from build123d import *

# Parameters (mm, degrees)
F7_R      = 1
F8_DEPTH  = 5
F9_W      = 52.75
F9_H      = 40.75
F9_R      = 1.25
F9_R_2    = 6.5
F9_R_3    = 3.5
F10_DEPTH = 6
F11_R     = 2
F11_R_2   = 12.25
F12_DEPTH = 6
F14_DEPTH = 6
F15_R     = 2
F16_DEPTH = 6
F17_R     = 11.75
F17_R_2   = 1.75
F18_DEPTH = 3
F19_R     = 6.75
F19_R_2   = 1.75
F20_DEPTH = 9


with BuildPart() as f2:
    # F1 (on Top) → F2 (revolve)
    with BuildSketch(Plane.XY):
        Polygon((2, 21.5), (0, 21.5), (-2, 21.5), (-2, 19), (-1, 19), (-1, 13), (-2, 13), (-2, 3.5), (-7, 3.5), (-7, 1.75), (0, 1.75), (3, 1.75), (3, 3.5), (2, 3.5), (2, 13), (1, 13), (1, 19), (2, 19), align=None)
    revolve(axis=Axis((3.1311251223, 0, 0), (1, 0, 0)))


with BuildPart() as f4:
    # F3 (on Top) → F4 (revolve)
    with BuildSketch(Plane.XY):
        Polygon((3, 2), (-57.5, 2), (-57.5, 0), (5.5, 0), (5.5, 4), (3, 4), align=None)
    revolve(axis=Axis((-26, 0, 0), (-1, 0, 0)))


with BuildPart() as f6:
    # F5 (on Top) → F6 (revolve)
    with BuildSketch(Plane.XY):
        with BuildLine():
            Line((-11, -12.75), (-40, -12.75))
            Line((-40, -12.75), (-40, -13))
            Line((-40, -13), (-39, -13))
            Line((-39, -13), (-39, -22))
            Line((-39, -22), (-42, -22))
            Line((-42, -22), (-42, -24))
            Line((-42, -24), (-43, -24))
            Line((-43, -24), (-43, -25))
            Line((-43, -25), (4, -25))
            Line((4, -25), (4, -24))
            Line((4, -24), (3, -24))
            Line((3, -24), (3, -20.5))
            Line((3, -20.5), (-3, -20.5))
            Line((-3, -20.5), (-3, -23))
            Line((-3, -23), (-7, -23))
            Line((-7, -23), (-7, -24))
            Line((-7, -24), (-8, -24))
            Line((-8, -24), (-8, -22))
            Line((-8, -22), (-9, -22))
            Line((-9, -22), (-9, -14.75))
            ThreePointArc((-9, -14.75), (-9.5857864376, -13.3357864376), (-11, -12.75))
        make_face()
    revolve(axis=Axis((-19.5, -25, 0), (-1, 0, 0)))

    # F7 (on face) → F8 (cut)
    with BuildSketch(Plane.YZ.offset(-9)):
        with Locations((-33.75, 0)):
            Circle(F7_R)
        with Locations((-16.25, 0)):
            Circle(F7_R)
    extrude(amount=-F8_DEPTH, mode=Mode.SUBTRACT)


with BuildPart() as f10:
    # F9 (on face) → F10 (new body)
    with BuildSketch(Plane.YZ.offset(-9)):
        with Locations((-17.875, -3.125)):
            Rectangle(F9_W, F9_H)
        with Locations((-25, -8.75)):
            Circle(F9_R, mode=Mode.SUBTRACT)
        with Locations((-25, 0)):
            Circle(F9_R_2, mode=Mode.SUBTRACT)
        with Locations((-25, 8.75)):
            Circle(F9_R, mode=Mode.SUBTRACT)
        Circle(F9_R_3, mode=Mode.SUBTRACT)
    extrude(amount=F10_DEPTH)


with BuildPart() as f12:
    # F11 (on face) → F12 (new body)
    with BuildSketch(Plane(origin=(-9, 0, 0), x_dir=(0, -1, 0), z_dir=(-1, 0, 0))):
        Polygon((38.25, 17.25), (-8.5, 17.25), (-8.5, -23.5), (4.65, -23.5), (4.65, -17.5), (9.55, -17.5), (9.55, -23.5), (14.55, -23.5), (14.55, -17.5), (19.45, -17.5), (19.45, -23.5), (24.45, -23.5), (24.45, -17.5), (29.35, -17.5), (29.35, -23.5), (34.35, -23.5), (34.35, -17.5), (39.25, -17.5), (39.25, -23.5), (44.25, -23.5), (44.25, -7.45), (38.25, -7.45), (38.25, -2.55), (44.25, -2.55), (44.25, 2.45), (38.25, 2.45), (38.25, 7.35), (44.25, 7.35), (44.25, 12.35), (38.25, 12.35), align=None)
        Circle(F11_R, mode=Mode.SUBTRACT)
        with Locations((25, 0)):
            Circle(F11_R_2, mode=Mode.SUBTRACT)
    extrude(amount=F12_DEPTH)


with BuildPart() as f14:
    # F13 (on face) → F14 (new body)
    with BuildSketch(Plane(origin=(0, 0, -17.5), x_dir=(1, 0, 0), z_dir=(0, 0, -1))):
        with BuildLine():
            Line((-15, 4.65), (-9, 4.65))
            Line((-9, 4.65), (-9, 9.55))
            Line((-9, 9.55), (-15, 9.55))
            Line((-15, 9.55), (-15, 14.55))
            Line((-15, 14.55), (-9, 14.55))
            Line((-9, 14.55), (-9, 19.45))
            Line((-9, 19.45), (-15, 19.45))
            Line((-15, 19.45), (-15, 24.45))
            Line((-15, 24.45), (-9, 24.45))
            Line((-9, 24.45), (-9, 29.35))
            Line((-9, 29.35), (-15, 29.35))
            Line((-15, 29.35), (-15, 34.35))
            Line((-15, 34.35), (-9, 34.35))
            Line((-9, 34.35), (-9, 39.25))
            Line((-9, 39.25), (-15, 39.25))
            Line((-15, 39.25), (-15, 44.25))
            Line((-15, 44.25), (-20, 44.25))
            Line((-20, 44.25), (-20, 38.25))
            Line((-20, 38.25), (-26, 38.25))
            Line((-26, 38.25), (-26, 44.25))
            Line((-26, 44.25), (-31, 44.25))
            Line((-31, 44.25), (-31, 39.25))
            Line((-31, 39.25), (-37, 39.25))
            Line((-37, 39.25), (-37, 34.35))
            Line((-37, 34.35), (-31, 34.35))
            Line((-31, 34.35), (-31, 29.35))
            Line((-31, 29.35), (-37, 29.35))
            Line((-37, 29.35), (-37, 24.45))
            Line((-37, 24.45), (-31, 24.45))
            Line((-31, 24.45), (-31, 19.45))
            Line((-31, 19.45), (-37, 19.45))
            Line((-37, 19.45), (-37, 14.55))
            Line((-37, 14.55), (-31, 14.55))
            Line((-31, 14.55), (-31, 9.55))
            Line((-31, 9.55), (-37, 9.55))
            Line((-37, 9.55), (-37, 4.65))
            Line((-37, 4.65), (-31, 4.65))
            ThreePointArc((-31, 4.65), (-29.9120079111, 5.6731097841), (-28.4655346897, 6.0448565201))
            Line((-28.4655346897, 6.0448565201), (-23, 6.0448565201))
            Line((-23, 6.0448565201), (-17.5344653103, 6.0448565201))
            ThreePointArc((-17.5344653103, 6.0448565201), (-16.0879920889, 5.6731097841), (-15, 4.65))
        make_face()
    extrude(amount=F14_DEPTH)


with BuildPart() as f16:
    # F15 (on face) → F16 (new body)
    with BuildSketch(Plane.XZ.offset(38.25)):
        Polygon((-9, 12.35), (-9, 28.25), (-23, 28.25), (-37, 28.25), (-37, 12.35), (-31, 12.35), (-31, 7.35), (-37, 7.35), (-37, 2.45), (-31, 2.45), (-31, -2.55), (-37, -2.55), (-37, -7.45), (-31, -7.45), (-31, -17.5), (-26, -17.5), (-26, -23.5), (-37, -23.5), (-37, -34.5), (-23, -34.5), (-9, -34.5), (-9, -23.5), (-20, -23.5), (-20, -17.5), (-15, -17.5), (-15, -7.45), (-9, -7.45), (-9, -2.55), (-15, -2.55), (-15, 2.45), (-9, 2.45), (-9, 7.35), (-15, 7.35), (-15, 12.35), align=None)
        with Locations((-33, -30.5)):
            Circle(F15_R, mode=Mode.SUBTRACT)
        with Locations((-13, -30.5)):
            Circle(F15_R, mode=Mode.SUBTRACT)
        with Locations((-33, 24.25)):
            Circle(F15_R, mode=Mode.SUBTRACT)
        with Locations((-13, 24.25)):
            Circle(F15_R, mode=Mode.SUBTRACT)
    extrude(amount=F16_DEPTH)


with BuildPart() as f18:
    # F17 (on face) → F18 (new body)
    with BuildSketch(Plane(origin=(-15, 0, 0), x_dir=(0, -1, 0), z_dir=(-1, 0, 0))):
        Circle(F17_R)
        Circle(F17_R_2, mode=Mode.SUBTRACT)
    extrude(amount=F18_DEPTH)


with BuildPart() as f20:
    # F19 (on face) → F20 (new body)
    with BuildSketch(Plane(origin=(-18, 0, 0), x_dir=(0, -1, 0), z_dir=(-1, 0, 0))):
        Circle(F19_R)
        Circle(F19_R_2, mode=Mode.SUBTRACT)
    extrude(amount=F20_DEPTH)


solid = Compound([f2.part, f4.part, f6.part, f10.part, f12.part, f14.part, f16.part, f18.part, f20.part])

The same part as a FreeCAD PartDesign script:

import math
import FreeCAD as App
import Part
import Sketcher

V = App.Vector


def add_polygon(sketch, points):
    """Adds a closed chain of lines whose ends are joined by coincident constraints."""
    first, n = sketch.GeometryCount, len(points)
    for a, b in zip(points, points[1:] + points[:1]):
        sketch.addGeometry(Part.LineSegment(App.Vector(*a, 0), App.Vector(*b, 0)), False)
    for i in range(n):
        sketch.addConstraint(Sketcher.Constraint("Coincident", first + i, 2, first + (i + 1) % n, 1))

doc = App.newDocument("Part")
body = doc.addObject("PartDesign::Body", "Body")

# Sketch on XY plane
sketch1 = body.newObject("Sketcher::SketchObject", "Sketch")
sketch1.AttachmentSupport = (doc.getObject("XY_Plane"), [""])
sketch1.MapMode = "FlatFace"
add_polygon(sketch1, [(2, 21.5), (-2, 21.5), (-2, 19), (-1, 19), (-1, 13), (-2, 13), (-2, 3.5), (-7, 3.5), (-7, 1.75), (3, 1.75), (3, 3.5), (2, 3.5), (2, 13), (1, 13), (1, 19), (2, 19)])  # lines 0-15
sketch1.addConstraint(Sketcher.Constraint("Horizontal", 0))
sketch1.addConstraint(Sketcher.Constraint("Vertical", 1))
sketch1.addConstraint(Sketcher.Constraint("Horizontal", 2))
sketch1.addConstraint(Sketcher.Constraint("Vertical", 3))
sketch1.addConstraint(Sketcher.Constraint("Horizontal", 4))
sketch1.addConstraint(Sketcher.Constraint("Vertical", 5))
sketch1.addConstraint(Sketcher.Constraint("Horizontal", 6))
sketch1.addConstraint(Sketcher.Constraint("Vertical", 7))
sketch1.addConstraint(Sketcher.Constraint("Horizontal", 8))
sketch1.addConstraint(Sketcher.Constraint("Vertical", 9))
sketch1.addConstraint(Sketcher.Constraint("Horizontal", 10))
sketch1.addConstraint(Sketcher.Constraint("Vertical", 11))
sketch1.addConstraint(Sketcher.Constraint("Horizontal", 12))
sketch1.addConstraint(Sketcher.Constraint("Vertical", 13))
sketch1.addConstraint(Sketcher.Constraint("Horizontal", 14))
sketch1.addConstraint(Sketcher.Constraint("Vertical", 15))
sketch1.addConstraint(Sketcher.Constraint("Symmetric", 5, 2, 10, 2, -2))
sketch1.addConstraint(Sketcher.Constraint("Symmetric", 3, 2, 12, 2, -2))
sketch1.addConstraint(Sketcher.Constraint("Symmetric", 1, 2, 14, 2, -2))
sketch1.addConstraint(Sketcher.Constraint("Vertical", 1, 2, 4, 2))
sketch1.addConstraint(Sketcher.Constraint("Equal", 4, 10))
sketch1.addConstraint(Sketcher.Constraint("DistanceX", 0, 2, 0, 1, 4.0))
sketch1.addConstraint(Sketcher.Constraint("DistanceX", 2, 1, 2, 2, 1.0))
sketch1.addConstraint(Sketcher.Constraint("DistanceX", 6, 2, 6, 1, 5.0))
sketch1.addConstraint(Sketcher.Constraint("DistanceY", 3, 2, 3, 1, 6.0))
sketch1.addConstraint(Sketcher.Constraint("DistanceY", 1, 2, 1, 1, 2.5))
sketch1.addConstraint(Sketcher.Constraint("DistanceY", 5, 2, 5, 1, 9.5))
sketch1.addConstraint(Sketcher.Constraint("DistanceY", -1, 1, 1, 2, 19.0))
sketch1.addConstraint(Sketcher.Constraint("DistanceY", 7, 2, 7, 1, 1.75))
revolution = body.newObject("PartDesign::Revolution", "Revolution")
revolution.Profile = sketch1
revolution.ReferenceAxis = (sketch1, ["H_Axis"])
revolution.Angle = 360
body2 = doc.addObject("PartDesign::Body", "Body001")

# Sketch on XY plane
sketch2 = body2.newObject("Sketcher::SketchObject", "Sketch001")
sketch2.AttachmentSupport = (doc.getObject("XY_Plane001"), [""])
sketch2.MapMode = "FlatFace"
add_polygon(sketch2, [(3, 2), (-57.5, 2), (-57.5, 0), (5.5, 0), (5.5, 4), (3, 4)])  # lines 0-5
sketch2.addConstraint(Sketcher.Constraint("Horizontal", 0))
sketch2.addConstraint(Sketcher.Constraint("Vertical", 1))
sketch2.addConstraint(Sketcher.Constraint("Horizontal", 2))
sketch2.addConstraint(Sketcher.Constraint("Vertical", 3))
sketch2.addConstraint(Sketcher.Constraint("Horizontal", 4))
sketch2.addConstraint(Sketcher.Constraint("Vertical", 5))
sketch2.addConstraint(Sketcher.Constraint("PointOnObject", 1, 2, -1))
sketch2.addConstraint(Sketcher.Constraint("Equal", 1, 5))
sketch2.addConstraint(Sketcher.Constraint("DistanceX", 2, 1, 2, 2, 63.0))
sketch2.addConstraint(Sketcher.Constraint("DistanceY", 1, 2, 1, 1, 2.0))
sketch2.addConstraint(Sketcher.Constraint("DistanceX", 0, 2, 0, 1, 60.5))
sketch2.addConstraint(Sketcher.Constraint("DistanceX", -1, 1, 4, 2, 3.0))
revolution2 = body2.newObject("PartDesign::Revolution", "Revolution001")
revolution2.Profile = sketch2
revolution2.ReferenceAxis = (sketch2, ["H_Axis"])
revolution2.Angle = 360
body3 = doc.addObject("PartDesign::Body", "Body002")

# Sketch on XY plane
sketch3 = body3.newObject("Sketcher::SketchObject", "Sketch002")
sketch3.AttachmentSupport = (doc.getObject("XY_Plane002"), [""])
sketch3.MapMode = "FlatFace"
sketch3.addGeometry(Part.LineSegment(V(-11, -12.75, 0), V(-40, -12.75, 0)), False)
sketch3.addGeometry(Part.LineSegment(V(-40, -12.75, 0), V(-40, -13, 0)), False)
sketch3.addGeometry(Part.LineSegment(V(-40, -13, 0), V(-39, -13, 0)), False)
sketch3.addGeometry(Part.LineSegment(V(-39, -13, 0), V(-39, -22, 0)), False)
sketch3.addGeometry(Part.LineSegment(V(-39, -22, 0), V(-42, -22, 0)), False)
sketch3.addGeometry(Part.LineSegment(V(-42, -22, 0), V(-42, -24, 0)), False)
sketch3.addGeometry(Part.LineSegment(V(-42, -24, 0), V(-43, -24, 0)), False)
sketch3.addGeometry(Part.LineSegment(V(-43, -24, 0), V(-43, -25, 0)), False)
sketch3.addGeometry(Part.LineSegment(V(-43, -25, 0), V(4, -25, 0)), False)
sketch3.addGeometry(Part.LineSegment(V(4, -25, 0), V(4, -24, 0)), False)
sketch3.addGeometry(Part.LineSegment(V(4, -24, 0), V(3, -24, 0)), False)
sketch3.addGeometry(Part.LineSegment(V(3, -24, 0), V(3, -20.5, 0)), False)
sketch3.addGeometry(Part.LineSegment(V(3, -20.5, 0), V(-3, -20.5, 0)), False)
sketch3.addGeometry(Part.LineSegment(V(-3, -20.5, 0), V(-3, -23, 0)), False)
sketch3.addGeometry(Part.LineSegment(V(-3, -23, 0), V(-7, -23, 0)), False)
sketch3.addGeometry(Part.LineSegment(V(-7, -23, 0), V(-7, -24, 0)), False)
sketch3.addGeometry(Part.LineSegment(V(-7, -24, 0), V(-8, -24, 0)), False)
sketch3.addGeometry(Part.LineSegment(V(-8, -24, 0), V(-8, -22, 0)), False)
sketch3.addGeometry(Part.LineSegment(V(-8, -22, 0), V(-9, -22, 0)), False)
sketch3.addGeometry(Part.LineSegment(V(-9, -22, 0), V(-9, -14.75, 0)), False)
sketch3.addGeometry(Part.ArcOfCircle(Part.Circle(V(-11, -14.75, 0), V(0, 0, 1), 2), math.radians(0), math.radians(90)), False)
sketch3.addGeometry(Part.LineSegment(V(4, -25, 0), V(-43, -25, 0)), True)  # axis
sketch3.addConstraint(Sketcher.Constraint("Coincident", 0, 2, 1, 1))
sketch3.addConstraint(Sketcher.Constraint("Coincident", 1, 2, 2, 1))
sketch3.addConstraint(Sketcher.Constraint("Coincident", 2, 2, 3, 1))
sketch3.addConstraint(Sketcher.Constraint("Coincident", 3, 2, 4, 1))
sketch3.addConstraint(Sketcher.Constraint("Coincident", 4, 2, 5, 1))
sketch3.addConstraint(Sketcher.Constraint("Coincident", 5, 2, 6, 1))
sketch3.addConstraint(Sketcher.Constraint("Coincident", 6, 2, 7, 1))
sketch3.addConstraint(Sketcher.Constraint("Coincident", 7, 2, 8, 1))
sketch3.addConstraint(Sketcher.Constraint("Coincident", 8, 2, 9, 1))
sketch3.addConstraint(Sketcher.Constraint("Coincident", 9, 2, 10, 1))
sketch3.addConstraint(Sketcher.Constraint("Coincident", 10, 2, 11, 1))
sketch3.addConstraint(Sketcher.Constraint("Coincident", 11, 2, 12, 1))
sketch3.addConstraint(Sketcher.Constraint("Coincident", 12, 2, 13, 1))
sketch3.addConstraint(Sketcher.Constraint("Coincident", 13, 2, 14, 1))
sketch3.addConstraint(Sketcher.Constraint("Coincident", 14, 2, 15, 1))
sketch3.addConstraint(Sketcher.Constraint("Coincident", 15, 2, 16, 1))
sketch3.addConstraint(Sketcher.Constraint("Coincident", 16, 2, 17, 1))
sketch3.addConstraint(Sketcher.Constraint("Coincident", 17, 2, 18, 1))
sketch3.addConstraint(Sketcher.Constraint("Coincident", 18, 2, 19, 1))
sketch3.addConstraint(Sketcher.Constraint("Tangent", 19, 2, 20, 1))
sketch3.addConstraint(Sketcher.Constraint("Tangent", 20, 2, 0, 1))
sketch3.addConstraint(Sketcher.Constraint("Horizontal", 0))
sketch3.addConstraint(Sketcher.Constraint("Vertical", 1))
sketch3.addConstraint(Sketcher.Constraint("Horizontal", 2))
sketch3.addConstraint(Sketcher.Constraint("Vertical", 3))
sketch3.addConstraint(Sketcher.Constraint("Horizontal", 4))
sketch3.addConstraint(Sketcher.Constraint("Vertical", 5))
sketch3.addConstraint(Sketcher.Constraint("Horizontal", 6))
sketch3.addConstraint(Sketcher.Constraint("Vertical", 7))
sketch3.addConstraint(Sketcher.Constraint("Horizontal", 8))
sketch3.addConstraint(Sketcher.Constraint("Vertical", 9))
sketch3.addConstraint(Sketcher.Constraint("Horizontal", 10))
sketch3.addConstraint(Sketcher.Constraint("Vertical", 11))
sketch3.addConstraint(Sketcher.Constraint("Horizontal", 12))
sketch3.addConstraint(Sketcher.Constraint("Vertical", 13))
sketch3.addConstraint(Sketcher.Constraint("Horizontal", 14))
sketch3.addConstraint(Sketcher.Constraint("Vertical", 15))
sketch3.addConstraint(Sketcher.Constraint("Horizontal", 16))
sketch3.addConstraint(Sketcher.Constraint("Vertical", 17))
sketch3.addConstraint(Sketcher.Constraint("Horizontal", 18))
sketch3.addConstraint(Sketcher.Constraint("Vertical", 19))
sketch3.addConstraint(Sketcher.Constraint("Horizontal", 21))
sketch3.addConstraint(Sketcher.Constraint("Coincident", 21, 1, 8, 2))
sketch3.addConstraint(Sketcher.Constraint("Horizontal", 6, 2, 9, 2))
sketch3.addConstraint(Sketcher.Constraint("Horizontal", 10, 2, 15, 2))
sketch3.addConstraint(Sketcher.Constraint("Horizontal", 4, 2, 17, 2))
sketch3.addConstraint(Sketcher.Constraint("Vertical", 6, 2, 21, 2))
sketch3.addConstraint(Sketcher.Constraint("Equal", 2, 6))
sketch3.addConstraint(Sketcher.Constraint("Equal", 6, 10))
sketch3.addConstraint(Sketcher.Constraint("Equal", 10, 16))
sketch3.addConstraint(Sketcher.Constraint("Equal", 16, 18))
sketch3.addConstraint(Sketcher.Constraint("Equal", 18, 7))
sketch3.addConstraint(Sketcher.Constraint("Equal", 9, 15))
sketch3.addConstraint(Sketcher.Constraint("Radius", 20, 2.0))
sketch3.addConstraint(Sketcher.Constraint("DistanceX", 0, 2, 0, 1, 29.0))
sketch3.addConstraint(Sketcher.Constraint("DistanceX", 2, 1, 2, 2, 1.0))
sketch3.addConstraint(Sketcher.Constraint("DistanceX", 4, 2, 4, 1, 3.0))
sketch3.addConstraint(Sketcher.Constraint("DistanceX", 8, 1, 8, 2, 47.0))
sketch3.addConstraint(Sketcher.Constraint("DistanceX", 12, 2, 12, 1, 6.0))
sketch3.addConstraint(Sketcher.Constraint("DistanceY", 3, 2, 3, 1, 9.0))
sketch3.addConstraint(Sketcher.Constraint("DistanceY", 5, 2, 5, 1, 2.0))
sketch3.addConstraint(Sketcher.Constraint("DistanceY", 11, 1, 11, 2, 3.5))
sketch3.addConstraint(Sketcher.Constraint("DistanceX", 20, 3, -1, 1, 11.0))
sketch3.addConstraint(Sketcher.Constraint("DistanceY", 1, 2, -1, 1, 13.0))
sketch3.addConstraint(Sketcher.Constraint("DistanceY", 1, 2, 1, 1, 0.25))
revolution3 = body3.newObject("PartDesign::Revolution", "Revolution002")
revolution3.Profile = sketch3
revolution3.ReferenceAxis = (sketch3, ["Axis0"])
revolution3.Angle = 360

# Sketch on YZ plane
sketch4 = body3.newObject("Sketcher::SketchObject", "Sketch003")
sketch4.AttachmentSupport = (doc.getObject("YZ_Plane002"), [""])
sketch4.MapMode = "FlatFace"
sketch4.AttachmentOffset = App.Placement(V(0, 0, -9), App.Rotation())
sketch4.addGeometry(Part.Circle(V(-33.75, 0, 0), V(0, 0, 1), 1), False)
sketch4.addGeometry(Part.Circle(V(-16.25, 0, 0), V(0, 0, 1), 1), False)
sketch4.addConstraint(Sketcher.Constraint("Equal", 0, 1))
sketch4.addConstraint(Sketcher.Constraint("PointOnObject", 0, 3, -1))
sketch4.addConstraint(Sketcher.Constraint("PointOnObject", 1, 3, -1))
sketch4.addConstraint(Sketcher.Constraint("Diameter", 0, 2.0))
sketch4.addConstraint(Sketcher.Constraint("DistanceX", 0, 3, 1, 3, 17.5))
sketch4.addConstraint(Sketcher.Constraint("DistanceX", 0, 3, -1, 1, 33.75))
pocket1 = body3.newObject("PartDesign::Pocket", "Pocket")
pocket1.Profile = sketch4
pocket1.Length = 5
body4 = doc.addObject("PartDesign::Body", "Body003")

# Sketch on YZ plane
sketch5 = body4.newObject("Sketcher::SketchObject", "Sketch004")
sketch5.AttachmentSupport = (doc.getObject("YZ_Plane003"), [""])
sketch5.MapMode = "FlatFace"
sketch5.AttachmentOffset = App.Placement(V(0, 0, -9), App.Rotation())
add_polygon(sketch5, [(-44.25, 17.25), (-44.25, -23.5), (8.5, -23.5), (8.5, 17.25)])  # lines 0-3
sketch5.addGeometry(Part.Circle(V(-25, -8.75, 0), V(0, 0, 1), 1.25), False)  # 4
sketch5.addGeometry(Part.Circle(V(-25, 0, 0), V(0, 0, 1), 6.5), False)  # 5
sketch5.addGeometry(Part.Circle(V(-25, 8.75, 0), V(0, 0, 1), 1.25), False)  # 6
sketch5.addGeometry(Part.Circle(V(0, 0, 0), V(0, 0, 1), 3.5), False)  # 7
sketch5.addConstraint(Sketcher.Constraint("Vertical", 0))
sketch5.addConstraint(Sketcher.Constraint("Horizontal", 1))
sketch5.addConstraint(Sketcher.Constraint("Vertical", 2))
sketch5.addConstraint(Sketcher.Constraint("Horizontal", 3))
sketch5.addConstraint(Sketcher.Constraint("Coincident", 7, 3, -1, 1))
sketch5.addConstraint(Sketcher.Constraint("Equal", 4, 6))
sketch5.addConstraint(Sketcher.Constraint("Symmetric", 4, 3, 6, 3, -1))
sketch5.addConstraint(Sketcher.Constraint("PointOnObject", 5, 3, -1))
sketch5.addConstraint(Sketcher.Constraint("Vertical", 4, 3, 5, 3))
sketch5.addConstraint(Sketcher.Constraint("Diameter", 5, 13.0))
sketch5.addConstraint(Sketcher.Constraint("Diameter", 7, 7.0))
sketch5.addConstraint(Sketcher.Constraint("Diameter", 4, 2.5))
sketch5.addConstraint(Sketcher.Constraint("DistanceX", 4, 3, -1, 1, 25.0))
sketch5.addConstraint(Sketcher.Constraint("DistanceY", 4, 3, 2, 2, 26.0))
sketch5.addConstraint(Sketcher.Constraint("DistanceX", 1, 1, 1, 2, 52.75))
sketch5.addConstraint(Sketcher.Constraint("DistanceY", 0, 2, 0, 1, 40.75))
sketch5.addConstraint(Sketcher.Constraint("DistanceY", 0, 2, -1, 1, 23.5))
sketch5.addConstraint(Sketcher.Constraint("DistanceX", -1, 1, 1, 2, 8.5))
pad1 = body4.newObject("PartDesign::Pad", "Pad")
pad1.Profile = sketch5
pad1.Length = 6
body5 = doc.addObject("PartDesign::Body", "Body004")

# Sketch on YZ plane
sketch6 = body5.newObject("Sketcher::SketchObject", "Sketch005")
sketch6.AttachmentSupport = (doc.getObject("YZ_Plane004"), [""])
sketch6.MapMode = "FlatFace"
sketch6.AttachmentOffset = App.Placement(V(0, 0, -9), App.Rotation())
add_polygon(sketch6, [(-38.25, 17.25), (8.5, 17.25), (8.5, -23.5), (-4.65, -23.5), (-4.65, -17.5), (-9.55, -17.5), (-9.55, -23.5), (-14.55, -23.5), (-14.55, -17.5), (-19.45, -17.5), (-19.45, -23.5), (-24.45, -23.5), (-24.45, -17.5), (-29.35, -17.5), (-29.35, -23.5), (-34.35, -23.5), (-34.35, -17.5), (-39.25, -17.5), (-39.25, -23.5), (-44.25, -23.5), (-44.25, -7.45), (-38.25, -7.45), (-38.25, -2.55), (-44.25, -2.55), (-44.25, 2.45), (-38.25, 2.45), (-38.25, 7.35), (-44.25, 7.35), (-44.25, 12.35), (-38.25, 12.35)])  # lines 0-29
sketch6.addGeometry(Part.Circle(V(0, 0, 0), V(0, 0, 1), 2), False)  # 30
sketch6.addGeometry(Part.Circle(V(-25, 0, 0), V(0, 0, 1), 12.25), False)  # 31
sketch6.addConstraint(Sketcher.Constraint("Horizontal", 0))
sketch6.addConstraint(Sketcher.Constraint("Vertical", 1))
sketch6.addConstraint(Sketcher.Constraint("Horizontal", 2))
sketch6.addConstraint(Sketcher.Constraint("Vertical", 3))
sketch6.addConstraint(Sketcher.Constraint("Horizontal", 4))
sketch6.addConstraint(Sketcher.Constraint("Vertical", 5))
sketch6.addConstraint(Sketcher.Constraint("Horizontal", 6))
sketch6.addConstraint(Sketcher.Constraint("Vertical", 7))
sketch6.addConstraint(Sketcher.Constraint("Horizontal", 8))
sketch6.addConstraint(Sketcher.Constraint("Vertical", 9))
sketch6.addConstraint(Sketcher.Constraint("Horizontal", 10))
sketch6.addConstraint(Sketcher.Constraint("Vertical", 11))
sketch6.addConstraint(Sketcher.Constraint("Horizontal", 12))
sketch6.addConstraint(Sketcher.Constraint("Vertical", 13))
sketch6.addConstraint(Sketcher.Constraint("Horizontal", 14))
sketch6.addConstraint(Sketcher.Constraint("Vertical", 15))
sketch6.addConstraint(Sketcher.Constraint("Horizontal", 16))
sketch6.addConstraint(Sketcher.Constraint("Vertical", 17))
sketch6.addConstraint(Sketcher.Constraint("Horizontal", 18))
sketch6.addConstraint(Sketcher.Constraint("Vertical", 19))
sketch6.addConstraint(Sketcher.Constraint("Horizontal", 20))
sketch6.addConstraint(Sketcher.Constraint("Vertical", 21))
sketch6.addConstraint(Sketcher.Constraint("Horizontal", 22))
sketch6.addConstraint(Sketcher.Constraint("Vertical", 23))
sketch6.addConstraint(Sketcher.Constraint("Horizontal", 24))
sketch6.addConstraint(Sketcher.Constraint("Vertical", 25))
sketch6.addConstraint(Sketcher.Constraint("Horizontal", 26))
sketch6.addConstraint(Sketcher.Constraint("Vertical", 27))
sketch6.addConstraint(Sketcher.Constraint("Horizontal", 28))
sketch6.addConstraint(Sketcher.Constraint("Vertical", 29))
sketch6.addConstraint(Sketcher.Constraint("Coincident", 30, 3, -1, 1))
sketch6.addConstraint(Sketcher.Constraint("PointOnObject", 31, 3, -1))
sketch6.addConstraint(Sketcher.Constraint("Horizontal", 2, 2, 5, 2))
sketch6.addConstraint(Sketcher.Constraint("Horizontal", 4, 2, 7, 2))
sketch6.addConstraint(Sketcher.Constraint("Horizontal", 6, 2, 9, 2))
sketch6.addConstraint(Sketcher.Constraint("Horizontal", 8, 2, 11, 2))
sketch6.addConstraint(Sketcher.Constraint("Horizontal", 10, 2, 13, 2))
sketch6.addConstraint(Sketcher.Constraint("Horizontal", 12, 2, 15, 2))
sketch6.addConstraint(Sketcher.Constraint("Horizontal", 14, 2, 17, 2))
sketch6.addConstraint(Sketcher.Constraint("Vertical", 19, 2, 22, 2))
sketch6.addConstraint(Sketcher.Constraint("Vertical", 21, 2, 24, 2))
sketch6.addConstraint(Sketcher.Constraint("Vertical", 23, 2, 26, 2))
sketch6.addConstraint(Sketcher.Constraint("Vertical", 25, 2, 28, 2))
sketch6.addConstraint(Sketcher.Constraint("Equal", 4, 8))
sketch6.addConstraint(Sketcher.Constraint("Equal", 6, 10))
sketch6.addConstraint(Sketcher.Constraint("Equal", 8, 12))
sketch6.addConstraint(Sketcher.Constraint("Equal", 10, 14))
sketch6.addConstraint(Sketcher.Constraint("Equal", 12, 16))
sketch6.addConstraint(Sketcher.Constraint("Equal", 14, 18))
sketch6.addConstraint(Sketcher.Constraint("Equal", 28, 3))
sketch6.addConstraint(Sketcher.Constraint("Equal", 16, 21))
sketch6.addConstraint(Sketcher.Constraint("Equal", 18, 23))
sketch6.addConstraint(Sketcher.Constraint("Equal", 21, 25))
sketch6.addConstraint(Sketcher.Constraint("Equal", 23, 27))
sketch6.addConstraint(Sketcher.Constraint("Equal", 25, 29))
sketch6.addConstraint(Sketcher.Constraint("Diameter", 30, 4.0))
sketch6.addConstraint(Sketcher.Constraint("Diameter", 31, 24.5))
sketch6.addConstraint(Sketcher.Constraint("DistanceX", 6, 2, 6, 1, 5.0))
sketch6.addConstraint(Sketcher.Constraint("DistanceX", 20, 1, 20, 2, 6.0))
sketch6.addConstraint(Sketcher.Constraint("DistanceX", 4, 2, 4, 1, 4.9))
sketch6.addConstraint(Sketcher.Constraint("DistanceX", 31, 3, -1, 1, 25.0))
sketch6.addConstraint(Sketcher.Constraint("DistanceX", 0, 1, 0, 2, 46.75))
sketch6.addConstraint(Sketcher.Constraint("DistanceY", 1, 2, 1, 1, 40.75))
sketch6.addConstraint(Sketcher.Constraint("DistanceX", -1, 1, 0, 2, 8.5))
sketch6.addConstraint(Sketcher.Constraint("DistanceY", 1, 2, -1, 1, 23.5))
pad2 = body5.newObject("PartDesign::Pad", "Pad001")
pad2.Profile = sketch6
pad2.Length = 6
pad2.Reversed = True
body6 = doc.addObject("PartDesign::Body", "Body005")

# Sketch on XY plane
sketch7 = body6.newObject("Sketcher::SketchObject", "Sketch006")
sketch7.AttachmentSupport = (doc.getObject("XY_Plane005"), [""])
sketch7.MapMode = "FlatFace"
sketch7.AttachmentOffset = App.Placement(V(0, 0, -17.5), App.Rotation())
sketch7.addGeometry(Part.LineSegment(V(-15, -4.65, 0), V(-9, -4.65, 0)), False)
sketch7.addGeometry(Part.LineSegment(V(-9, -4.65, 0), V(-9, -9.55, 0)), False)
sketch7.addGeometry(Part.LineSegment(V(-9, -9.55, 0), V(-15, -9.55, 0)), False)
sketch7.addGeometry(Part.LineSegment(V(-15, -9.55, 0), V(-15, -14.55, 0)), False)
sketch7.addGeometry(Part.LineSegment(V(-15, -14.55, 0), V(-9, -14.55, 0)), False)
sketch7.addGeometry(Part.LineSegment(V(-9, -14.55, 0), V(-9, -19.45, 0)), False)
sketch7.addGeometry(Part.LineSegment(V(-9, -19.45, 0), V(-15, -19.45, 0)), False)
sketch7.addGeometry(Part.LineSegment(V(-15, -19.45, 0), V(-15, -24.45, 0)), False)
sketch7.addGeometry(Part.LineSegment(V(-15, -24.45, 0), V(-9, -24.45, 0)), False)
sketch7.addGeometry(Part.LineSegment(V(-9, -24.45, 0), V(-9, -29.35, 0)), False)
sketch7.addGeometry(Part.LineSegment(V(-9, -29.35, 0), V(-15, -29.35, 0)), False)
sketch7.addGeometry(Part.LineSegment(V(-15, -29.35, 0), V(-15, -34.35, 0)), False)
sketch7.addGeometry(Part.LineSegment(V(-15, -34.35, 0), V(-9, -34.35, 0)), False)
sketch7.addGeometry(Part.LineSegment(V(-9, -34.35, 0), V(-9, -39.25, 0)), False)
sketch7.addGeometry(Part.LineSegment(V(-9, -39.25, 0), V(-15, -39.25, 0)), False)
sketch7.addGeometry(Part.LineSegment(V(-15, -39.25, 0), V(-15, -44.25, 0)), False)
sketch7.addGeometry(Part.LineSegment(V(-15, -44.25, 0), V(-20, -44.25, 0)), False)
sketch7.addGeometry(Part.LineSegment(V(-20, -44.25, 0), V(-20, -38.25, 0)), False)
sketch7.addGeometry(Part.LineSegment(V(-20, -38.25, 0), V(-26, -38.25, 0)), False)
sketch7.addGeometry(Part.LineSegment(V(-26, -38.25, 0), V(-26, -44.25, 0)), False)
sketch7.addGeometry(Part.LineSegment(V(-26, -44.25, 0), V(-31, -44.25, 0)), False)
sketch7.addGeometry(Part.LineSegment(V(-31, -44.25, 0), V(-31, -39.25, 0)), False)
sketch7.addGeometry(Part.LineSegment(V(-31, -39.25, 0), V(-37, -39.25, 0)), False)
sketch7.addGeometry(Part.LineSegment(V(-37, -39.25, 0), V(-37, -34.35, 0)), False)
sketch7.addGeometry(Part.LineSegment(V(-37, -34.35, 0), V(-31, -34.35, 0)), False)
sketch7.addGeometry(Part.LineSegment(V(-31, -34.35, 0), V(-31, -29.35, 0)), False)
sketch7.addGeometry(Part.LineSegment(V(-31, -29.35, 0), V(-37, -29.35, 0)), False)
sketch7.addGeometry(Part.LineSegment(V(-37, -29.35, 0), V(-37, -24.45, 0)), False)
sketch7.addGeometry(Part.LineSegment(V(-37, -24.45, 0), V(-31, -24.45, 0)), False)
sketch7.addGeometry(Part.LineSegment(V(-31, -24.45, 0), V(-31, -19.45, 0)), False)
sketch7.addGeometry(Part.LineSegment(V(-31, -19.45, 0), V(-37, -19.45, 0)), False)
sketch7.addGeometry(Part.LineSegment(V(-37, -19.45, 0), V(-37, -14.55, 0)), False)
sketch7.addGeometry(Part.LineSegment(V(-37, -14.55, 0), V(-31, -14.55, 0)), False)
sketch7.addGeometry(Part.LineSegment(V(-31, -14.55, 0), V(-31, -9.55, 0)), False)
sketch7.addGeometry(Part.LineSegment(V(-31, -9.55, 0), V(-37, -9.55, 0)), False)
sketch7.addGeometry(Part.LineSegment(V(-37, -9.55, 0), V(-37, -4.65, 0)), False)
sketch7.addGeometry(Part.LineSegment(V(-37, -4.65, 0), V(-31, -4.65, 0)), False)
sketch7.addGeometry(Part.ArcOfCircle(Part.Circle(V(-28.465535, -3.044857, 0), V(0, 0, 1), 3), math.radians(-147.652845), math.radians(-90)), False)
sketch7.addGeometry(Part.LineSegment(V(-28.465535, -6.044857, 0), V(-17.534465, -6.044857, 0)), False)
sketch7.addGeometry(Part.ArcOfCircle(Part.Circle(V(-17.534465, -3.044857, 0), V(0, 0, 1), 3), math.radians(-90), math.radians(-32.347155)), False)
sketch7.addConstraint(Sketcher.Constraint("Coincident", 0, 2, 1, 1))
sketch7.addConstraint(Sketcher.Constraint("Coincident", 1, 2, 2, 1))
sketch7.addConstraint(Sketcher.Constraint("Coincident", 2, 2, 3, 1))
sketch7.addConstraint(Sketcher.Constraint("Coincident", 3, 2, 4, 1))
sketch7.addConstraint(Sketcher.Constraint("Coincident", 4, 2, 5, 1))
sketch7.addConstraint(Sketcher.Constraint("Coincident", 5, 2, 6, 1))
sketch7.addConstraint(Sketcher.Constraint("Coincident", 6, 2, 7, 1))
sketch7.addConstraint(Sketcher.Constraint("Coincident", 7, 2, 8, 1))
sketch7.addConstraint(Sketcher.Constraint("Coincident", 8, 2, 9, 1))
sketch7.addConstraint(Sketcher.Constraint("Coincident", 9, 2, 10, 1))
sketch7.addConstraint(Sketcher.Constraint("Coincident", 10, 2, 11, 1))
sketch7.addConstraint(Sketcher.Constraint("Coincident", 11, 2, 12, 1))
sketch7.addConstraint(Sketcher.Constraint("Coincident", 12, 2, 13, 1))
sketch7.addConstraint(Sketcher.Constraint("Coincident", 13, 2, 14, 1))
sketch7.addConstraint(Sketcher.Constraint("Coincident", 14, 2, 15, 1))
sketch7.addConstraint(Sketcher.Constraint("Coincident", 15, 2, 16, 1))
sketch7.addConstraint(Sketcher.Constraint("Coincident", 16, 2, 17, 1))
sketch7.addConstraint(Sketcher.Constraint("Coincident", 17, 2, 18, 1))
sketch7.addConstraint(Sketcher.Constraint("Coincident", 18, 2, 19, 1))
sketch7.addConstraint(Sketcher.Constraint("Coincident", 19, 2, 20, 1))
sketch7.addConstraint(Sketcher.Constraint("Coincident", 20, 2, 21, 1))
sketch7.addConstraint(Sketcher.Constraint("Coincident", 21, 2, 22, 1))
sketch7.addConstraint(Sketcher.Constraint("Coincident", 22, 2, 23, 1))
sketch7.addConstraint(Sketcher.Constraint("Coincident", 23, 2, 24, 1))
sketch7.addConstraint(Sketcher.Constraint("Coincident", 24, 2, 25, 1))
sketch7.addConstraint(Sketcher.Constraint("Coincident", 25, 2, 26, 1))
sketch7.addConstraint(Sketcher.Constraint("Coincident", 26, 2, 27, 1))
sketch7.addConstraint(Sketcher.Constraint("Coincident", 27, 2, 28, 1))
sketch7.addConstraint(Sketcher.Constraint("Coincident", 28, 2, 29, 1))
sketch7.addConstraint(Sketcher.Constraint("Coincident", 29, 2, 30, 1))
sketch7.addConstraint(Sketcher.Constraint("Coincident", 30, 2, 31, 1))
sketch7.addConstraint(Sketcher.Constraint("Coincident", 31, 2, 32, 1))
sketch7.addConstraint(Sketcher.Constraint("Coincident", 32, 2, 33, 1))
sketch7.addConstraint(Sketcher.Constraint("Coincident", 33, 2, 34, 1))
sketch7.addConstraint(Sketcher.Constraint("Coincident", 34, 2, 35, 1))
sketch7.addConstraint(Sketcher.Constraint("Coincident", 35, 2, 36, 1))
sketch7.addConstraint(Sketcher.Constraint("Coincident", 36, 2, 37, 1))
sketch7.addConstraint(Sketcher.Constraint("Tangent", 37, 2, 38, 1))
sketch7.addConstraint(Sketcher.Constraint("Tangent", 38, 2, 39, 1))
sketch7.addConstraint(Sketcher.Constraint("Coincident", 39, 2, 0, 1))
sketch7.addConstraint(Sketcher.Constraint("Horizontal", 0))
sketch7.addConstraint(Sketcher.Constraint("Vertical", 1))
sketch7.addConstraint(Sketcher.Constraint("Horizontal", 2))
sketch7.addConstraint(Sketcher.Constraint("Vertical", 3))
sketch7.addConstraint(Sketcher.Constraint("Horizontal", 4))
sketch7.addConstraint(Sketcher.Constraint("Vertical", 5))
sketch7.addConstraint(Sketcher.Constraint("Horizontal", 6))
sketch7.addConstraint(Sketcher.Constraint("Vertical", 7))
sketch7.addConstraint(Sketcher.Constraint("Horizontal", 8))
sketch7.addConstraint(Sketcher.Constraint("Vertical", 9))
sketch7.addConstraint(Sketcher.Constraint("Horizontal", 10))
sketch7.addConstraint(Sketcher.Constraint("Vertical", 11))
sketch7.addConstraint(Sketcher.Constraint("Horizontal", 12))
sketch7.addConstraint(Sketcher.Constraint("Vertical", 13))
sketch7.addConstraint(Sketcher.Constraint("Horizontal", 14))
sketch7.addConstraint(Sketcher.Constraint("Vertical", 15))
sketch7.addConstraint(Sketcher.Constraint("Horizontal", 16))
sketch7.addConstraint(Sketcher.Constraint("Vertical", 17))
sketch7.addConstraint(Sketcher.Constraint("Horizontal", 18))
sketch7.addConstraint(Sketcher.Constraint("Vertical", 19))
sketch7.addConstraint(Sketcher.Constraint("Horizontal", 20))
sketch7.addConstraint(Sketcher.Constraint("Vertical", 21))
sketch7.addConstraint(Sketcher.Constraint("Horizontal", 22))
sketch7.addConstraint(Sketcher.Constraint("Vertical", 23))
sketch7.addConstraint(Sketcher.Constraint("Horizontal", 24))
sketch7.addConstraint(Sketcher.Constraint("Vertical", 25))
sketch7.addConstraint(Sketcher.Constraint("Horizontal", 26))
sketch7.addConstraint(Sketcher.Constraint("Vertical", 27))
sketch7.addConstraint(Sketcher.Constraint("Horizontal", 28))
sketch7.addConstraint(Sketcher.Constraint("Vertical", 29))
sketch7.addConstraint(Sketcher.Constraint("Horizontal", 30))
sketch7.addConstraint(Sketcher.Constraint("Vertical", 31))
sketch7.addConstraint(Sketcher.Constraint("Horizontal", 32))
sketch7.addConstraint(Sketcher.Constraint("Vertical", 33))
sketch7.addConstraint(Sketcher.Constraint("Horizontal", 34))
sketch7.addConstraint(Sketcher.Constraint("Vertical", 35))
sketch7.addConstraint(Sketcher.Constraint("Horizontal", 36))
sketch7.addConstraint(Sketcher.Constraint("Horizontal", 38))
sketch7.addConstraint(Sketcher.Constraint("Equal", 37, 39))
sketch7.addConstraint(Sketcher.Constraint("Horizontal", 16, 2, 19, 2))
sketch7.addConstraint(Sketcher.Constraint("Horizontal", 14, 2, 21, 2))
sketch7.addConstraint(Sketcher.Constraint("Horizontal", 12, 2, 23, 2))
sketch7.addConstraint(Sketcher.Constraint("Horizontal", 10, 2, 25, 2))
sketch7.addConstraint(Sketcher.Constraint("Horizontal", 8, 2, 27, 2))
sketch7.addConstraint(Sketcher.Constraint("Horizontal", 6, 2, 29, 2))
sketch7.addConstraint(Sketcher.Constraint("Horizontal", 4, 2, 31, 2))
sketch7.addConstraint(Sketcher.Constraint("Horizontal", 2, 2, 33, 2))
sketch7.addConstraint(Sketcher.Constraint("Horizontal", 0, 2, 35, 2))
sketch7.addConstraint(Sketcher.Constraint("Vertical", 1, 2, 4, 2))
sketch7.addConstraint(Sketcher.Constraint("Vertical", 3, 2, 6, 2))
sketch7.addConstraint(Sketcher.Constraint("Vertical", 5, 2, 8, 2))
sketch7.addConstraint(Sketcher.Constraint("Vertical", 7, 2, 10, 2))
sketch7.addConstraint(Sketcher.Constraint("Vertical", 9, 2, 12, 2))
sketch7.addConstraint(Sketcher.Constraint("Vertical", 11, 2, 14, 2))
sketch7.addConstraint(Sketcher.Constraint("Vertical", 21, 2, 24, 2))
sketch7.addConstraint(Sketcher.Constraint("Vertical", 23, 2, 26, 2))
sketch7.addConstraint(Sketcher.Constraint("Vertical", 25, 2, 28, 2))
sketch7.addConstraint(Sketcher.Constraint("Vertical", 27, 2, 30, 2))
sketch7.addConstraint(Sketcher.Constraint("Vertical", 29, 2, 32, 2))
sketch7.addConstraint(Sketcher.Constraint("Vertical", 31, 2, 34, 2))
sketch7.addConstraint(Sketcher.Constraint("Vertical", 33, 2, 36, 2))
sketch7.addConstraint(Sketcher.Constraint("Vertical", 15, 2, 39, 2))
sketch7.addConstraint(Sketcher.Constraint("Equal", 14, 18))
sketch7.addConstraint(Sketcher.Constraint("Equal", 16, 20))
sketch7.addConstraint(Sketcher.Constraint("Equal", 18, 22))
sketch7.addConstraint(Sketcher.Constraint("Equal", 20, 3))
sketch7.addConstraint(Sketcher.Constraint("Equal", 1, 5))
sketch7.addConstraint(Sketcher.Constraint("Equal", 3, 7))
sketch7.addConstraint(Sketcher.Constraint("Equal", 5, 9))
sketch7.addConstraint(Sketcher.Constraint("Equal", 7, 11))
sketch7.addConstraint(Sketcher.Constraint("Equal", 9, 13))
sketch7.addConstraint(Sketcher.Constraint("Equal", 11, 15))
sketch7.addConstraint(Sketcher.Constraint("Equal", 36, 17))
sketch7.addConstraint(Sketcher.Constraint("Radius", 37, 3.0))
sketch7.addConstraint(Sketcher.Constraint("DistanceX", 0, 1, 0, 2, 6.0))
sketch7.addConstraint(Sketcher.Constraint("DistanceX", 16, 2, 16, 1, 5.0))
sketch7.addConstraint(Sketcher.Constraint("DistanceY", 1, 2, 1, 1, 4.9))
sketch7.addConstraint(Sketcher.Constraint("DistanceX", 0, 2, -1, 1, 9.0))
sketch7.addConstraint(Sketcher.Constraint("DistanceY", 0, 2, -1, 1, 4.65))
sketch7.addConstraint(Sketcher.Constraint("DistanceX", 38, 1, 38, 2, 10.931069))
pad3 = body6.newObject("PartDesign::Pad", "Pad002")
pad3.Profile = sketch7
pad3.Length = 6
pad3.Reversed = True
body7 = doc.addObject("PartDesign::Body", "Body006")

# Sketch on XZ plane
sketch8 = body7.newObject("Sketcher::SketchObject", "Sketch007")
sketch8.AttachmentSupport = (doc.getObject("XZ_Plane006"), [""])
sketch8.MapMode = "FlatFace"
sketch8.AttachmentOffset = App.Placement(V(0, 0, 38.25), App.Rotation())
add_polygon(sketch8, [(-9, 12.35), (-9, 28.25), (-37, 28.25), (-37, 12.35), (-31, 12.35), (-31, 7.35), (-37, 7.35), (-37, 2.45), (-31, 2.45), (-31, -2.55), (-37, -2.55), (-37, -7.45), (-31, -7.45), (-31, -17.5), (-26, -17.5), (-26, -23.5), (-37, -23.5), (-37, -34.5), (-9, -34.5), (-9, -23.5), (-20, -23.5), (-20, -17.5), (-15, -17.5), (-15, -7.45), (-9, -7.45), (-9, -2.55), (-15, -2.55), (-15, 2.45), (-9, 2.45), (-9, 7.35), (-15, 7.35), (-15, 12.35)])  # lines 0-31
sketch8.addGeometry(Part.Circle(V(-33, -30.5, 0), V(0, 0, 1), 2), False)  # 32
sketch8.addGeometry(Part.Circle(V(-13, -30.5, 0), V(0, 0, 1), 2), False)  # 33
sketch8.addGeometry(Part.Circle(V(-33, 24.25, 0), V(0, 0, 1), 2), False)  # 34
sketch8.addGeometry(Part.Circle(V(-13, 24.25, 0), V(0, 0, 1), 2), False)  # 35
sketch8.addConstraint(Sketcher.Constraint("Vertical", 0))
sketch8.addConstraint(Sketcher.Constraint("Horizontal", 1))
sketch8.addConstraint(Sketcher.Constraint("Vertical", 2))
sketch8.addConstraint(Sketcher.Constraint("Horizontal", 3))
sketch8.addConstraint(Sketcher.Constraint("Vertical", 4))
sketch8.addConstraint(Sketcher.Constraint("Horizontal", 5))
sketch8.addConstraint(Sketcher.Constraint("Vertical", 6))
sketch8.addConstraint(Sketcher.Constraint("Horizontal", 7))
sketch8.addConstraint(Sketcher.Constraint("Vertical", 8))
sketch8.addConstraint(Sketcher.Constraint("Horizontal", 9))
sketch8.addConstraint(Sketcher.Constraint("Vertical", 10))
sketch8.addConstraint(Sketcher.Constraint("Horizontal", 11))
sketch8.addConstraint(Sketcher.Constraint("Vertical", 12))
sketch8.addConstraint(Sketcher.Constraint("Horizontal", 13))
sketch8.addConstraint(Sketcher.Constraint("Vertical", 14))
sketch8.addConstraint(Sketcher.Constraint("Horizontal", 15))
sketch8.addConstraint(Sketcher.Constraint("Vertical", 16))
sketch8.addConstraint(Sketcher.Constraint("Horizontal", 17))
sketch8.addConstraint(Sketcher.Constraint("Vertical", 18))
sketch8.addConstraint(Sketcher.Constraint("Horizontal", 19))
sketch8.addConstraint(Sketcher.Constraint("Vertical", 20))
sketch8.addConstraint(Sketcher.Constraint("Horizontal", 21))
sketch8.addConstraint(Sketcher.Constraint("Vertical", 22))
sketch8.addConstraint(Sketcher.Constraint("Horizontal", 23))
sketch8.addConstraint(Sketcher.Constraint("Vertical", 24))
sketch8.addConstraint(Sketcher.Constraint("Horizontal", 25))
sketch8.addConstraint(Sketcher.Constraint("Vertical", 26))
sketch8.addConstraint(Sketcher.Constraint("Horizontal", 27))
sketch8.addConstraint(Sketcher.Constraint("Vertical", 28))
sketch8.addConstraint(Sketcher.Constraint("Horizontal", 29))
sketch8.addConstraint(Sketcher.Constraint("Vertical", 30))
sketch8.addConstraint(Sketcher.Constraint("Horizontal", 31))
sketch8.addConstraint(Sketcher.Constraint("Equal", 32, 33))
sketch8.addConstraint(Sketcher.Constraint("Equal", 33, 34))
sketch8.addConstraint(Sketcher.Constraint("Equal", 34, 35))
sketch8.addConstraint(Sketcher.Constraint("Horizontal", 32, 3, 33, 3))
sketch8.addConstraint(Sketcher.Constraint("Horizontal", 34, 3, 35, 3))
sketch8.addConstraint(Sketcher.Constraint("Horizontal", 15, 2, 18, 2))
sketch8.addConstraint(Sketcher.Constraint("Horizontal", 13, 2, 20, 2))
sketch8.addConstraint(Sketcher.Constraint("Horizontal", 11, 2, 22, 2))
sketch8.addConstraint(Sketcher.Constraint("Horizontal", 9, 2, 24, 2))
sketch8.addConstraint(Sketcher.Constraint("Horizontal", 7, 2, 26, 2))
sketch8.addConstraint(Sketcher.Constraint("Horizontal", 5, 2, 28, 2))
sketch8.addConstraint(Sketcher.Constraint("Horizontal", 3, 2, 30, 2))
sketch8.addConstraint(Sketcher.Constraint("Vertical", 32, 3, 34, 3))
sketch8.addConstraint(Sketcher.Constraint("Vertical", 33, 3, 35, 3))
sketch8.addConstraint(Sketcher.Constraint("Vertical", 2, 2, 5, 2))
sketch8.addConstraint(Sketcher.Constraint("Vertical", 4, 2, 7, 2))
sketch8.addConstraint(Sketcher.Constraint("Vertical", 6, 2, 9, 2))
sketch8.addConstraint(Sketcher.Constraint("Vertical", 8, 2, 11, 2))
sketch8.addConstraint(Sketcher.Constraint("Vertical", 10, 2, 15, 2))
sketch8.addConstraint(Sketcher.Constraint("Vertical", 0, 2, 17, 2))
sketch8.addConstraint(Sketcher.Constraint("Vertical", 18, 2, 23, 2))
sketch8.addConstraint(Sketcher.Constraint("Vertical", 22, 2, 25, 2))
sketch8.addConstraint(Sketcher.Constraint("Vertical", 24, 2, 27, 2))
sketch8.addConstraint(Sketcher.Constraint("Vertical", 26, 2, 29, 2))
sketch8.addConstraint(Sketcher.Constraint("Equal", 15, 19))
sketch8.addConstraint(Sketcher.Constraint("Equal", 13, 21))
sketch8.addConstraint(Sketcher.Constraint("Equal", 21, 4))
sketch8.addConstraint(Sketcher.Constraint("Equal", 4, 8))
sketch8.addConstraint(Sketcher.Constraint("Equal", 6, 10))
sketch8.addConstraint(Sketcher.Constraint("Equal", 31, 14))
sketch8.addConstraint(Sketcher.Constraint("Equal", 19, 16))
sketch8.addConstraint(Sketcher.Constraint("Diameter", 32, 4.0))
sketch8.addConstraint(Sketcher.Constraint("DistanceX", 1, 2, 1, 1, 28.0))
sketch8.addConstraint(Sketcher.Constraint("DistanceX", 3, 1, 3, 2, 6.0))
sketch8.addConstraint(Sketcher.Constraint("DistanceX", 13, 1, 13, 2, 5.0))
sketch8.addConstraint(Sketcher.Constraint("DistanceY", 0, 1, 0, 2, 15.9))
sketch8.addConstraint(Sketcher.Constraint("DistanceY", 6, 2, 6, 1, 4.9))
sketch8.addConstraint(Sketcher.Constraint("DistanceX", 32, 3, -1, 1, 33.0))
sketch8.addConstraint(Sketcher.Constraint("DistanceX", 33, 3, -1, 1, 13.0))
sketch8.addConstraint(Sketcher.Constraint("DistanceX", 0, 2, -1, 1, 9.0))
sketch8.addConstraint(Sketcher.Constraint("DistanceY", 35, 3, 0, 2, 4.0))
sketch8.addConstraint(Sketcher.Constraint("DistanceY", 32, 3, 12, 2, 13.0))
sketch8.addConstraint(Sketcher.Constraint("DistanceY", 12, 2, 12, 1, 10.05))
sketch8.addConstraint(Sketcher.Constraint("DistanceY", 32, 3, -1, 1, 30.5))
pad4 = body7.newObject("PartDesign::Pad", "Pad003")
pad4.Profile = sketch8
pad4.Length = 6
body8 = doc.addObject("PartDesign::Body", "Body007")

# Sketch on YZ plane
sketch9 = body8.newObject("Sketcher::SketchObject", "Sketch008")
sketch9.AttachmentSupport = (doc.getObject("YZ_Plane007"), [""])
sketch9.MapMode = "FlatFace"
sketch9.AttachmentOffset = App.Placement(V(0, 0, -15), App.Rotation())
sketch9.addGeometry(Part.Circle(V(0, 0, 0), V(0, 0, 1), 11.75), False)
sketch9.addGeometry(Part.Circle(V(0, 0, 0), V(0, 0, 1), 1.75), False)
sketch9.addConstraint(Sketcher.Constraint("Coincident", 0, 3, -1, 1))
sketch9.addConstraint(Sketcher.Constraint("Coincident", 1, 3, -1, 1))
sketch9.addConstraint(Sketcher.Constraint("Diameter", 0, 23.5))
sketch9.addConstraint(Sketcher.Constraint("Diameter", 1, 3.5))
pad5 = body8.newObject("PartDesign::Pad", "Pad004")
pad5.Profile = sketch9
pad5.Length = 3
pad5.Reversed = True
body9 = doc.addObject("PartDesign::Body", "Body008")

# Sketch on YZ plane
sketch10 = body9.newObject("Sketcher::SketchObject", "Sketch009")
sketch10.AttachmentSupport = (doc.getObject("YZ_Plane008"), [""])
sketch10.MapMode = "FlatFace"
sketch10.AttachmentOffset = App.Placement(V(0, 0, -18), App.Rotation())
sketch10.addGeometry(Part.Circle(V(0, 0, 0), V(0, 0, 1), 6.75), False)
sketch10.addGeometry(Part.Circle(V(0, 0, 0), V(0, 0, 1), 1.75), False)
sketch10.addConstraint(Sketcher.Constraint("Coincident", 0, 3, -1, 1))
sketch10.addConstraint(Sketcher.Constraint("Coincident", 1, 3, -1, 1))
sketch10.addConstraint(Sketcher.Constraint("Diameter", 0, 13.5))
sketch10.addConstraint(Sketcher.Constraint("Diameter", 1, 3.5))
pad6 = body9.newObject("PartDesign::Pad", "Pad005")
pad6.Profile = sketch10
pad6.Length = 9
pad6.Reversed = True

doc.recompute()
